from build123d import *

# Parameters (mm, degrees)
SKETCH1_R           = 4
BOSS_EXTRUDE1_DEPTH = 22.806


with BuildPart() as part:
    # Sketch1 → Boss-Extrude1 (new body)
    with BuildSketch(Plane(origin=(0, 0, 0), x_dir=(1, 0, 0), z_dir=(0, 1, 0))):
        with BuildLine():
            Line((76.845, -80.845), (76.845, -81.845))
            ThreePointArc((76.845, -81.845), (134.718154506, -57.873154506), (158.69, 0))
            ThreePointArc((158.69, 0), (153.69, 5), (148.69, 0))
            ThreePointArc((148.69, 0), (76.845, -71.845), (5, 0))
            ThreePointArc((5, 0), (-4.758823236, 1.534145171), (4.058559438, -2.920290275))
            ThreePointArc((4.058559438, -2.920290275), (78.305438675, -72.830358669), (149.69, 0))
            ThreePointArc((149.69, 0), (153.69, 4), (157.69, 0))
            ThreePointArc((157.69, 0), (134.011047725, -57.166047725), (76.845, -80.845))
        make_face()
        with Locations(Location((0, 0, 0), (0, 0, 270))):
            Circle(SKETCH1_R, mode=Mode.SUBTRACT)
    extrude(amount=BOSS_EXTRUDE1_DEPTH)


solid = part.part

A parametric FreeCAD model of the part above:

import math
import FreeCAD as App
import Part
import Sketcher

doc = App.newDocument("Part")
body = doc.addObject("PartDesign::Body", "Body")

# Sketch on XZ plane
sketch1 = doc.addObject("Sketcher::SketchObject", "Sketch")
body.addObject(sketch1)
sketch1.AttachmentSupport = (doc.XZ_Plane, [""])
sketch1.MapMode = "FlatFace"
sketch1.addGeometry(Part.LineSegment(App.Vector(76.8, 80.8, 0), App.Vector(76.8, 81.8, 0)), False)
sketch1.addGeometry(Part.ArcOfCircle(Part.Circle(App.Vector(76.8, 0, 0), App.Vector(0, 0, 1), 81.8), math.radians(0), math.radians(90)), False)
sketch1.addGeometry(Part.ArcOfCircle(Part.Circle(App.Vector(153.7, 0, 0), App.Vector(0, 0, 1), 5), math.radians(180), math.radians(360)), False)
sketch1.addGeometry(Part.ArcOfCircle(Part.Circle(App.Vector(76.8, 0, 0), App.Vector(0, 0, 1), 71.8), math.radians(0), math.radians(180)), False)
sketch1.addGeometry(Part.ArcOfCircle(Part.Circle(App.Vector(0, 0, 0), App.Vector(0, 0, 1), 5), math.radians(36), math.radians(360)), False)
sketch1.addGeometry(Part.ArcOfCircle(Part.Circle(App.Vector(76.8, 0, 0), App.Vector(0, 0, 1), 72.8), math.radians(0), math.radians(178)), False)
sketch1.addGeometry(Part.ArcOfCircle(Part.Circle(App.Vector(153.7, 0, 0), App.Vector(0, 0, 1), 4), math.radians(180), math.radians(360)), False)
sketch1.addGeometry(Part.ArcOfCircle(Part.Circle(App.Vector(76.8, 0, 0), App.Vector(0, 0, 1), 80.8), math.radians(0), math.radians(90)), False)
sketch1.addGeometry(Part.Circle(App.Vector(0, 0, 0), App.Vector(0, 0, 1), 4), False)
sketch1.addConstraint(Sketcher.Constraint("Coincident", 0, 2, 1, 2))
sketch1.addConstraint(Sketcher.Constraint("Tangent", 1, 1, 2, 2))
sketch1.addConstraint(Sketcher.Constraint("Tangent", 2, 1, 3, 1))
sketch1.addConstraint(Sketcher.Constraint("Tangent", 3, 2, 4, 2))
sketch1.addConstraint(Sketcher.Constraint("Coincident", 4, 1, 5, 2))
sketch1.addConstraint(Sketcher.Constraint("Tangent", 5, 1, 6, 1))
sketch1.addConstraint(Sketcher.Constraint("Tangent", 6, 2, 7, 1))
sketch1.addConstraint(Sketcher.Constraint("Coincident", 7, 2, 0, 1))
sketch1.addConstraint(Sketcher.Constraint("Vertical", 0))
sketch1.addConstraint(Sketcher.Constraint("Coincident", 4, 3, -1, 1))
sketch1.addConstraint(Sketcher.Constraint("Coincident", 8, 3, -1, 1))
sketch1.addConstraint(Sketcher.Constraint("Coincident", 3, 3, 1, 3))
sketch1.addConstraint(Sketcher.Constraint("Coincident", 5, 3, 1, 3))
sketch1.addConstraint(Sketcher.Constraint("Coincident", 6, 3, 2, 3))
sketch1.addConstraint(Sketcher.Constraint("Coincident", 7, 3, 1, 3))
sketch1.addConstraint(Sketcher.Constraint("Equal", 2, 4))
sketch1.addConstraint(Sketcher.Constraint("Equal", 6, 8))
sketch1.addConstraint(Sketcher.Constraint("PointOnObject", 1, 3, -1))
sketch1.addConstraint(Sketcher.Constraint("PointOnObject", 2, 3, -1))
sketch1.addConstraint(Sketcher.Constraint("Vertical", 7, 3, 0, 2))
sketch1.addConstraint(Sketcher.Constraint("Diameter", 8, 8.0))
sketch1.addConstraint(Sketcher.Constraint("Radius", 2, 5.0))
sketch1.addConstraint(Sketcher.Constraint("Radius", 1, 81.845))
pad1 = doc.addObject("PartDesign::Pad", "Pad")
body.addObject(pad1)
pad1.Profile = sketch1
pad1.Length = 22.806
pad1.Reversed = True

doc.recompute()
